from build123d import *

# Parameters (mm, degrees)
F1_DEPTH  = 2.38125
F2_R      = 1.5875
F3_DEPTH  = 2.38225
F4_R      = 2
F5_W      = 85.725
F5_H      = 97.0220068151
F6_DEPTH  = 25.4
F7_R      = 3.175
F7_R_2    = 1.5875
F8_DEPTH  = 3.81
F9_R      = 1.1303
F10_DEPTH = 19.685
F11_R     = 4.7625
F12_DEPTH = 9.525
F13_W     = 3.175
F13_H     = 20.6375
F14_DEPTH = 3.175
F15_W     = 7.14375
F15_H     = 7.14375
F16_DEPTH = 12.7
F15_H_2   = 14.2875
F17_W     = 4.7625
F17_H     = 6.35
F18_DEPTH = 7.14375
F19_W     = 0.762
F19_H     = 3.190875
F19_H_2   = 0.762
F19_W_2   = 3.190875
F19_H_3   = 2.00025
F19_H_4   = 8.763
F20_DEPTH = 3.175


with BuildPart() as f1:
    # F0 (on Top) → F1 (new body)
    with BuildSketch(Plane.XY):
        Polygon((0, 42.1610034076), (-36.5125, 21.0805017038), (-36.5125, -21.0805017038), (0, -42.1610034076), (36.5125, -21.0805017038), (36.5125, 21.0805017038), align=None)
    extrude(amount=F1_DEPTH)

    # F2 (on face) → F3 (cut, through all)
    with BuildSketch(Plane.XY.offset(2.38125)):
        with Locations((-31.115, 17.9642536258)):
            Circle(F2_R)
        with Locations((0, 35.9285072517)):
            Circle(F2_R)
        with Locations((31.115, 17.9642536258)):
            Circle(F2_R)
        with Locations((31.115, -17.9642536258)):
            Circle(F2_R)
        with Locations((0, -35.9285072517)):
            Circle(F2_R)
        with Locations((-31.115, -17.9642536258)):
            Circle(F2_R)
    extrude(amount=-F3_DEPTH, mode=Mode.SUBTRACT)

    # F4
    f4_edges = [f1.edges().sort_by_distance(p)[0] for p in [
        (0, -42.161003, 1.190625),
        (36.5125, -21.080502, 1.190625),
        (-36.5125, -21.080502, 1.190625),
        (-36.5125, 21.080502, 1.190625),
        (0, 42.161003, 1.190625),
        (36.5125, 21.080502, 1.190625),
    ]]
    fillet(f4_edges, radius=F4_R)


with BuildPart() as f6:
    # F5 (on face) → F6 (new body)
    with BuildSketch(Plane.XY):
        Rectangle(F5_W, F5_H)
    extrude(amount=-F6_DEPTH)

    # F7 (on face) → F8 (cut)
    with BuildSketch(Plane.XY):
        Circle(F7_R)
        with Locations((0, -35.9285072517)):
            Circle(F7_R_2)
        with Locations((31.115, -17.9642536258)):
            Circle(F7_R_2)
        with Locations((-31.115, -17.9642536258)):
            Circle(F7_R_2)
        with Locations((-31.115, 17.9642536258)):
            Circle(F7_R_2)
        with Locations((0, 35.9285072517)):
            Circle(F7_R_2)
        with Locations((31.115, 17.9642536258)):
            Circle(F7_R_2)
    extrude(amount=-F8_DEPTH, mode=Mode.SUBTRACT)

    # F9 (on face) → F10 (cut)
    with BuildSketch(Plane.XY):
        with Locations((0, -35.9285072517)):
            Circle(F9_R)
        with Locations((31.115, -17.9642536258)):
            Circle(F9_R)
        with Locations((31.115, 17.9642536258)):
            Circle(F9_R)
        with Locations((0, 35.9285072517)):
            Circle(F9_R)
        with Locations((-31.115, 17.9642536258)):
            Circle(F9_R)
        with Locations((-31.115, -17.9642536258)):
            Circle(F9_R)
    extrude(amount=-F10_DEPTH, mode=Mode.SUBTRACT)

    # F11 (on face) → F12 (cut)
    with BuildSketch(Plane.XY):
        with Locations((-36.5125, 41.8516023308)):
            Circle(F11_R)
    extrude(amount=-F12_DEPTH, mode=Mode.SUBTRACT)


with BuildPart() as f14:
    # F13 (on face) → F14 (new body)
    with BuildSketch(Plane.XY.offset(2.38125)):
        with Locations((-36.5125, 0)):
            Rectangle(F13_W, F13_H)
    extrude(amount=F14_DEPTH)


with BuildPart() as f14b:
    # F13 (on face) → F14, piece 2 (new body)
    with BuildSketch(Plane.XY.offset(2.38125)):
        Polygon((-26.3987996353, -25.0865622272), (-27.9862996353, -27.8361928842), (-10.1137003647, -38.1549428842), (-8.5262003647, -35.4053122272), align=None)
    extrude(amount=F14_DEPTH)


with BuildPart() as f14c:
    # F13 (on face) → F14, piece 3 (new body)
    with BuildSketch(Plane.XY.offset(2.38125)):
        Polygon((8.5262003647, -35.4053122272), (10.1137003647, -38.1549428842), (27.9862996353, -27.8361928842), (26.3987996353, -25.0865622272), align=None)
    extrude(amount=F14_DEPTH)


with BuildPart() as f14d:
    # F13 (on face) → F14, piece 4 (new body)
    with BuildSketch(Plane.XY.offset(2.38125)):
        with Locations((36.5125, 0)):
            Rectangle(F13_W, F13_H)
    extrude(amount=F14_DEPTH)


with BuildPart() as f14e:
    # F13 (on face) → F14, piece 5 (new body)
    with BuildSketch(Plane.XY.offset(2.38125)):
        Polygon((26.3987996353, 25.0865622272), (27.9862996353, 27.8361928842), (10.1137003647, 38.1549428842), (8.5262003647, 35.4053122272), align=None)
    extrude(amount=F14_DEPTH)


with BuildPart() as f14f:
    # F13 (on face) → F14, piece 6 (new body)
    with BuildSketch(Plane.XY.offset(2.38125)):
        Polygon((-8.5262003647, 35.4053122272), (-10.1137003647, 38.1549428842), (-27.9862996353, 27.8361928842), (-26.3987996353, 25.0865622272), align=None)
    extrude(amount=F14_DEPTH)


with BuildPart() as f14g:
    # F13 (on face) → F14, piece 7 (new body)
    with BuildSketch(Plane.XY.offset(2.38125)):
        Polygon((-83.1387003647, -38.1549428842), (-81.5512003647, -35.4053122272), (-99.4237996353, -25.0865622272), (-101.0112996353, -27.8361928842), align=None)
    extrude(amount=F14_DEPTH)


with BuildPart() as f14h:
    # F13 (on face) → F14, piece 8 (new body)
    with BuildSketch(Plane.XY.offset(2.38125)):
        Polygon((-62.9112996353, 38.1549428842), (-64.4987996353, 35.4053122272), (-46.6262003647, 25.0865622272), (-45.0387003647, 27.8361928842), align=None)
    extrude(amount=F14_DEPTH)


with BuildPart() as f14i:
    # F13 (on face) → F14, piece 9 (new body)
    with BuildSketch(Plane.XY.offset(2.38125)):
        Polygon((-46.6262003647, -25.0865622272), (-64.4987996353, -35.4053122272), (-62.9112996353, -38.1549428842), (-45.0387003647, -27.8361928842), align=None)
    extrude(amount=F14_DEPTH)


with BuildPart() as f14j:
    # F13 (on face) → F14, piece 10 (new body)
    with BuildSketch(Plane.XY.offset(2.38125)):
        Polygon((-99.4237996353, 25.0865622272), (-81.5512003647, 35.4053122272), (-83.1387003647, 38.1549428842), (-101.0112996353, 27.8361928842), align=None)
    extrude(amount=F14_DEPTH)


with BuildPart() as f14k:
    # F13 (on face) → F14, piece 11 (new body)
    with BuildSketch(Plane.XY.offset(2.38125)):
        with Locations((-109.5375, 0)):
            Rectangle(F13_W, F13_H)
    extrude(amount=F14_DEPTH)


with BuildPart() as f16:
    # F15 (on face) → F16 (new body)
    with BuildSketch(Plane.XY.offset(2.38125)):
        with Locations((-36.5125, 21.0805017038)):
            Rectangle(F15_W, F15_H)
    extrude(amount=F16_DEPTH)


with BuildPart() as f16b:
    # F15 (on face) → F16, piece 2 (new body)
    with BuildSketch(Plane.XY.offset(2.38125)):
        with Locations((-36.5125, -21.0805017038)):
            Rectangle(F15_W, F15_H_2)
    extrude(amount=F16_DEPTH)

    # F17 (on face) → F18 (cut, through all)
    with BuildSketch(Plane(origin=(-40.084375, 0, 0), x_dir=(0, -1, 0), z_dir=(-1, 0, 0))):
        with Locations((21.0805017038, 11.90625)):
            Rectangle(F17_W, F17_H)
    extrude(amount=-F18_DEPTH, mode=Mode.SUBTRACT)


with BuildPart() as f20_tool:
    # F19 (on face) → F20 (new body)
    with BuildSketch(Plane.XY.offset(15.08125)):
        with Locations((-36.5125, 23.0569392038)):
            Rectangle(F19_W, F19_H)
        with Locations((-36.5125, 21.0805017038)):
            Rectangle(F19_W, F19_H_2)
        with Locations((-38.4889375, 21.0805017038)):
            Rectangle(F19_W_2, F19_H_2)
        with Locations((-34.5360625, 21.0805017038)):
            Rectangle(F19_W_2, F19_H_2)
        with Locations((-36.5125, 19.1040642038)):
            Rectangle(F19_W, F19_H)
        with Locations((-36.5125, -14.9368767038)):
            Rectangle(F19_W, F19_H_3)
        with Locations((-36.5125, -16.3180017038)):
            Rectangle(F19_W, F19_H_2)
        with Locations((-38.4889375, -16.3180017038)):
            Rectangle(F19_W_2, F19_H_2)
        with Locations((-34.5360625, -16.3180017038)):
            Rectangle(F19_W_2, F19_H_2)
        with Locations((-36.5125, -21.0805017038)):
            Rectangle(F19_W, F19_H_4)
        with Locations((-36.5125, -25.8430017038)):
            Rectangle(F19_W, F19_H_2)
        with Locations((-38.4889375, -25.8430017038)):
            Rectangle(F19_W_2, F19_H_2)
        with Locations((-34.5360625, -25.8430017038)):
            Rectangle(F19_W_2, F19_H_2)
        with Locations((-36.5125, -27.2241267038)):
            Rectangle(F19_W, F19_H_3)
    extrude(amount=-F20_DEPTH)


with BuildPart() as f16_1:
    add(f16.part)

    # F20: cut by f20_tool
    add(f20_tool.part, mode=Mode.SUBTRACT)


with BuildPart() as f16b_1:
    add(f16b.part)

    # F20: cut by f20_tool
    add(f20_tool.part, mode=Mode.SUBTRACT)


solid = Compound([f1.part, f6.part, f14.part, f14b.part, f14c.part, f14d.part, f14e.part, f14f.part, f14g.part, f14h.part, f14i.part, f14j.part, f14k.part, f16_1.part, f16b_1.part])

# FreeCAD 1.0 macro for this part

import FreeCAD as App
import Part
import Sketcher
Q = App.Units.Quantity


def edges_at(feature, points):
    """Names of the edges that pass closest to the given points."""
    edges = feature.Shape.Edges
    near = lambda p: min(range(len(edges)), key=lambda i: edges[i].distToShape(Part.Vertex(*p))[0])
    return sorted({f"Edge{near(p) + 1}" for p in points})

doc = App.newDocument("Part")
body = doc.addObject("PartDesign::Body", "Body")

# Sketch on XY plane
sketch1 = body.newObject("Sketcher::SketchObject", "Sketch")
sketch1.AttachmentSupport = (doc.getObject("XY_Plane"), [""])
sketch1.MapMode = "FlatFace"
sketch1.addGeometry([
    Part.LineSegment(App.Vector(0, 42, 0), App.Vector(-37, 21, 0)),  # 0
    Part.LineSegment(App.Vector(-37, 21, 0), App.Vector(-37, -21, 0)),  # 1
    Part.LineSegment(App.Vector(-37, -21, 0), App.Vector(0, -42, 0)),  # 2
    Part.LineSegment(App.Vector(0, -42, 0), App.Vector(37, -21, 0)),  # 3
    Part.LineSegment(App.Vector(37, -21, 0), App.Vector(37, 21, 0)),  # 4
    Part.LineSegment(App.Vector(37, 21, 0), App.Vector(0, 42, 0)),  # 5
], False)
sketch1.addConstraint([
    Sketcher.Constraint("Coincident", 0, 2, 1, 1),
    Sketcher.Constraint("Coincident", 1, 2, 2, 1),
    Sketcher.Constraint("Coincident", 2, 2, 3, 1),
    Sketcher.Constraint("Coincident", 3, 2, 4, 1),
    Sketcher.Constraint("Coincident", 4, 2, 5, 1),
    Sketcher.Constraint("Coincident", 5, 2, 0, 1),
    Sketcher.Constraint("Vertical", 1),
    Sketcher.Constraint("Vertical", 4),
    Sketcher.Constraint("Symmetric", 0, 2, 3, 2, -1, 1),
    Sketcher.Constraint("Symmetric", 2, 2, 5, 2, -1, 1),
    Sketcher.Constraint("PointOnObject", 2, 2, -2),
    Sketcher.Constraint("Parallel", 2, 5),
    Sketcher.Constraint("Horizontal", 1, 2, 3, 2),
    Sketcher.Constraint("Angle", 0, Q("-150 deg")),
    Sketcher.Constraint("DistanceX", 0, 2, -1, 1, Q("1.4375 in")),
    Sketcher.Constraint("DistanceY", -1, 1, 0, 2, 21.080502),
])
pad1 = body.newObject("PartDesign::Pad", "Pad")
pad1.Profile = sketch1
pad1.Length = Q("0.09375 in")

# Sketch on XY plane
sketch2 = body.newObject("Sketcher::SketchObject", "Sketch001")
sketch2.AttachmentSupport = (doc.getObject("XY_Plane"), [""])
sketch2.MapMode = "FlatFace"
sketch2.AttachmentOffset = App.Placement(App.Vector(0, 0, 0.09375 * 25.4), App.Rotation())
sketch2.addGeometry([
    Part.Circle(App.Vector(-31.1, 18, 0), App.Vector(0, 0, 1), 1.6),  # 0
    Part.Circle(App.Vector(0, 35.9, 0), App.Vector(0, 0, 1), 1.6),  # 1
    Part.Circle(App.Vector(31.1, 18, 0), App.Vector(0, 0, 1), 1.6),  # 2
    Part.Circle(App.Vector(31.1, -18, 0), App.Vector(0, 0, 1), 1.6),  # 3
    Part.Circle(App.Vector(0, -35.9, 0), App.Vector(0, 0, 1), 1.6),  # 4
    Part.Circle(App.Vector(-31.1, -18, 0), App.Vector(0, 0, 1), 1.6),  # 5
], False)
sketch2.addConstraint([
    Sketcher.Constraint("Equal", 0, 1),
    Sketcher.Constraint("Equal", 1, 2),
    Sketcher.Constraint("Equal", 2, 3),
    Sketcher.Constraint("Equal", 3, 4),
    Sketcher.Constraint("Equal", 4, 5),
    Sketcher.Constraint("Symmetric", 0, 3, 3, 3, -1, 1),
    Sketcher.Constraint("Symmetric", 1, 3, 4, 3, -1, 1),
    Sketcher.Constraint("Symmetric", 2, 3, 5, 3, -1, 1),
    Sketcher.Constraint("Symmetric", 0, 3, 2, 3, -2),
    Sketcher.Constraint("PointOnObject", 1, 3, -2),
    Sketcher.Constraint("Diameter", 0, Q("0.125 in")),
    Sketcher.Constraint("DistanceX", 0, 3, 2, 3, Q("2.45 in")),
    Sketcher.Constraint("DistanceY", 3, 3, 1, 3, 53.892761),
    Sketcher.Constraint("DistanceY", -1, 1, 0, 3, 17.964254),
])
pocket1 = body.newObject("PartDesign::Pocket", "Pocket")
pocket1.Profile = sketch2
pocket1.Type = "ThroughAll"
doc.recompute()

fillet = body.newObject("PartDesign::Fillet", "Fillet")
fillet.Base = (pocket1, edges_at(pocket1, [
    (0, -42.161, 1.191),
    (36.513, -21.081, 1.191),
    (-36.513, -21.081, 1.191),
    (-36.513, 21.081, 1.191),
    (0, 42.161, 1.191),
    (36.513, 21.081, 1.191),
]))
fillet.Radius = 2
body2 = doc.addObject("PartDesign::Body", "Body001")

# Sketch on XY plane
sketch3 = body2.newObject("Sketcher::SketchObject", "Sketch002")
sketch3.AttachmentSupport = (doc.getObject("XY_Plane001"), [""])
sketch3.MapMode = "FlatFace"
sketch3.addGeometry([
    Part.LineSegment(App.Vector(-43, 49, 0), App.Vector(-43, -49, 0)),
    Part.LineSegment(App.Vector(-43, -49, 0), App.Vector(43, -49, 0)),
    Part.LineSegment(App.Vector(43, -49, 0), App.Vector(43, 49, 0)),
    Part.LineSegment(App.Vector(43, 49, 0), App.Vector(-43, 49, 0)),
], False)
sketch3.addConstraint([
    Sketcher.Constraint("Coincident", 0, 2, 1, 1),
    Sketcher.Constraint("Coincident", 1, 2, 2, 1),
    Sketcher.Constraint("Coincident", 2, 2, 3, 1),
    Sketcher.Constraint("Coincident", 3, 2, 0, 1),
    Sketcher.Constraint("Vertical", 0),
    Sketcher.Constraint("Horizontal", 1),
    Sketcher.Constraint("Vertical", 2),
    Sketcher.Constraint("Horizontal", 3),
    Sketcher.Constraint("Symmetric", 0, 2, 2, 2, -1, 1),
    Sketcher.Constraint("DistanceX", 1, 1, 1, 2, Q("3.375 in")),
    Sketcher.Constraint("DistanceY", 0, 2, 0, 1, 97.022007),
])
pad2 = body2.newObject("PartDesign::Pad", "Pad001")
pad2.Profile = sketch3
pad2.Length = Q("1 in")
pad2.Reversed = True

# Sketch on XY plane
sketch4 = body2.newObject("Sketcher::SketchObject", "Sketch003")
sketch4.AttachmentSupport = (doc.getObject("XY_Plane001"), [""])
sketch4.MapMode = "FlatFace"
sketch4.addGeometry([
    Part.Circle(App.Vector(0, 0, 0), App.Vector(0, 0, 1), 3.2),  # 0
    Part.Circle(App.Vector(0, -35.9, 0), App.Vector(0, 0, 1), 1.6),  # 1
    Part.Circle(App.Vector(31.1, -18, 0), App.Vector(0, 0, 1), 1.6),  # 2
    Part.Circle(App.Vector(-31.1, -18, 0), App.Vector(0, 0, 1), 1.6),  # 3
    Part.Circle(App.Vector(-31.1, 18, 0), App.Vector(0, 0, 1), 1.6),  # 4
    Part.Circle(App.Vector(0, 35.9, 0), App.Vector(0, 0, 1), 1.6),  # 5
    Part.Circle(App.Vector(31.1, 18, 0), App.Vector(0, 0, 1), 1.6),  # 6
], False)
sketch4.addConstraint([
    Sketcher.Constraint("Coincident", 0, 3, -1, 1),
    Sketcher.Constraint("Equal", 1, 2),
    Sketcher.Constraint("Equal", 2, 3),
    Sketcher.Constraint("Equal", 3, 4),
    Sketcher.Constraint("Equal", 4, 5),
    Sketcher.Constraint("Equal", 5, 6),
    Sketcher.Constraint("Symmetric", 2, 3, 4, 3, -1, 1),
    Sketcher.Constraint("Symmetric", 1, 3, 5, 3, -1, 1),
    Sketcher.Constraint("Symmetric", 3, 3, 6, 3, -1, 1),
    Sketcher.Constraint("Symmetric", 2, 3, 3, 3, -2),
    Sketcher.Constraint("PointOnObject", 1, 3, -2),
    Sketcher.Constraint("Diameter", 0, Q("0.25 in")),
    Sketcher.Constraint("Diameter", 1, Q("0.125 in")),
    Sketcher.Constraint("DistanceX", 3, 3, 2, 3, Q("2.45 in")),
    Sketcher.Constraint("DistanceY", 1, 3, 4, 3, 53.892761),
    Sketcher.Constraint("DistanceY", 1, 3, -1, 1, 35.928507),
])
pocket2 = body2.newObject("PartDesign::Pocket", "Pocket001")
pocket2.Profile = sketch4
pocket2.Length = Q("0.15 in")

# Sketch on XY plane
sketch5 = body2.newObject("Sketcher::SketchObject", "Sketch004")
sketch5.AttachmentSupport = (doc.getObject("XY_Plane001"), [""])
sketch5.MapMode = "FlatFace"
sketch5.addGeometry([
    Part.Circle(App.Vector(0, -35.9, 0), App.Vector(0, 0, 1), 1.1),  # 0
    Part.Circle(App.Vector(31.1, -18, 0), App.Vector(0, 0, 1), 1.1),  # 1
    Part.Circle(App.Vector(31.1, 18, 0), App.Vector(0, 0, 1), 1.1),  # 2
    Part.Circle(App.Vector(0, 35.9, 0), App.Vector(0, 0, 1), 1.1),  # 3
    Part.Circle(App.Vector(-31.1, 18, 0), App.Vector(0, 0, 1), 1.1),  # 4
    Part.Circle(App.Vector(-31.1, -18, 0), App.Vector(0, 0, 1), 1.1),  # 5
], False)
sketch5.addConstraint([
    Sketcher.Constraint("Equal", 0, 1),
    Sketcher.Constraint("Equal", 1, 2),
    Sketcher.Constraint("Equal", 2, 3),
    Sketcher.Constraint("Equal", 3, 4),
    Sketcher.Constraint("Equal", 4, 5),
    Sketcher.Constraint("Symmetric", 0, 3, 3, 3, -1, 1),
    Sketcher.Constraint("Symmetric", 1, 3, 4, 3, -1, 1),
    Sketcher.Constraint("Symmetric", 2, 3, 5, 3, -1, 1),
    Sketcher.Constraint("Symmetric", 2, 3, 4, 3, -2),
    Sketcher.Constraint("PointOnObject", 0, 3, -2),
    Sketcher.Constraint("Diameter", 0, Q("0.089 in")),
    Sketcher.Constraint("DistanceX", 4, 3, 2, 3, Q("2.45 in")),
    Sketcher.Constraint("DistanceY", 0, 3, 2, 3, 53.892761),
    Sketcher.Constraint("DistanceY", 0, 3, -1, 1, 35.928507),
])
pocket3 = body2.newObject("PartDesign::Pocket", "Pocket002")
pocket3.Profile = sketch5
pocket3.Length = Q("0.775 in")

# Sketch on XY plane
sketch6 = body2.newObject("Sketcher::SketchObject", "Sketch005")
sketch6.AttachmentSupport = (doc.getObject("XY_Plane001"), [""])
sketch6.MapMode = "FlatFace"
sketch6.addGeometry(Part.Circle(App.Vector(-36.5, 41.9, 0), App.Vector(0, 0, 1), 4.8), False)
sketch6.addConstraint([
    Sketcher.Constraint("Diameter", 0, Q("0.375 in")),
    Sketcher.Constraint("DistanceX", 0, 3, -1, 1, Q("1.4375 in")),
    Sketcher.Constraint("DistanceY", -1, 1, 0, 3, 41.851602),
])
pocket4 = body2.newObject("PartDesign::Pocket", "Pocket003")
pocket4.Profile = sketch6
pocket4.Length = Q("0.375 in")
body3 = doc.addObject("PartDesign::Body", "Body002")

# Sketch on XY plane
sketch7 = body3.newObject("Sketcher::SketchObject", "Sketch006")
sketch7.AttachmentSupport = (doc.getObject("XY_Plane002"), [""])
sketch7.MapMode = "FlatFace"
sketch7.AttachmentOffset = App.Placement(App.Vector(0, 0, 0.09375 * 25.4), App.Rotation())
sketch7.addGeometry([
    Part.LineSegment(App.Vector(-38.1, 10.3, 0), App.Vector(-38.1, -10.3, 0)),
    Part.LineSegment(App.Vector(-38.1, -10.3, 0), App.Vector(-34.9, -10.3, 0)),
    Part.LineSegment(App.Vector(-34.9, -10.3, 0), App.Vector(-34.9, 10.3, 0)),
    Part.LineSegment(App.Vector(-34.9, 10.3, 0), App.Vector(-38.1, 10.3, 0)),
], False)
sketch7.addConstraint([
    Sketcher.Constraint("Coincident", 0, 2, 1, 1),
    Sketcher.Constraint("Coincident", 1, 2, 2, 1),
    Sketcher.Constraint("Coincident", 2, 2, 3, 1),
    Sketcher.Constraint("Coincident", 3, 2, 0, 1),
    Sketcher.Constraint("Vertical", 0),
    Sketcher.Constraint("Horizontal", 1),
    Sketcher.Constraint("Vertical", 2),
    Sketcher.Constraint("Horizontal", 3),
    Sketcher.Constraint("DistanceX", 0, 2, -1, 1, Q("1.5 in")),
    Sketcher.Constraint("DistanceX", 1, 1, 1, 2, Q("0.125 in")),
    Sketcher.Constraint("DistanceY", 0, 2, 0, 1, Q("0.8125 in")),
    Sketcher.Constraint("DistanceY", 0, 2, -1, 1, Q("0.40625 in")),
])
pad3 = body3.newObject("PartDesign::Pad", "Pad002")
pad3.Profile = sketch7
pad3.Length = Q("0.125 in")
body4 = doc.addObject("PartDesign::Body", "Body003")

# Sketch on XY plane
sketch8 = body4.newObject("Sketcher::SketchObject", "Sketch007")
sketch8.AttachmentSupport = (doc.getObject("XY_Plane003"), [""])
sketch8.MapMode = "FlatFace"
sketch8.AttachmentOffset = App.Placement(App.Vector(0, 0, 0.09375 * 25.4), App.Rotation())
sketch8.addGeometry([
    Part.LineSegment(App.Vector(-26.4, -25.1, 0), App.Vector(-28, -27.8, 0)),
    Part.LineSegment(App.Vector(-28, -27.8, 0), App.Vector(-10.1, -38.2, 0)),
    Part.LineSegment(App.Vector(-10.1, -38.2, 0), App.Vector(-8.5, -35.4, 0)),
    Part.LineSegment(App.Vector(-8.5, -35.4, 0), App.Vector(-26.4, -25.1, 0)),
], False)
sketch8.addConstraint([
    Sketcher.Constraint("Coincident", 0, 2, 1, 1),
    Sketcher.Constraint("Coincident", 1, 2, 2, 1),
    Sketcher.Constraint("Coincident", 2, 2, 3, 1),
    Sketcher.Constraint("Coincident", 3, 2, 0, 1),
    Sketcher.Constraint("Perpendicular", 0, 1),
    Sketcher.Constraint("Perpendicular", 1, 2),
    Sketcher.Constraint("Perpendicular", 2, 3),
    Sketcher.Constraint("Angle", 0, Q("-120 deg")),
    Sketcher.Constraint("Distance", 0, Q("0.125 in")),
    Sketcher.Constraint("Distance", 1, Q("0.8125 in")),
    Sketcher.Constraint("DistanceX", 0, 2, -1, 1, 27.9863),
    Sketcher.Constraint("DistanceY", 0, 2, -1, 1, 27.836193),
])
pad4 = body4.newObject("PartDesign::Pad", "Pad003")
pad4.Profile = sketch8
pad4.Length = Q("0.125 in")
body5 = doc.addObject("PartDesign::Body", "Body004")

# Sketch on XY plane
sketch9 = body5.newObject("Sketcher::SketchObject", "Sketch008")
sketch9.AttachmentSupport = (doc.getObject("XY_Plane004"), [""])
sketch9.MapMode = "FlatFace"
sketch9.AttachmentOffset = App.Placement(App.Vector(0, 0, 0.09375 * 25.4), App.Rotation())
sketch9.addGeometry([
    Part.LineSegment(App.Vector(8.5, -35.4, 0), App.Vector(10.1, -38.2, 0)),
    Part.LineSegment(App.Vector(10.1, -38.2, 0), App.Vector(28, -27.8, 0)),
    Part.LineSegment(App.Vector(28, -27.8, 0), App.Vector(26.4, -25.1, 0)),
    Part.LineSegment(App.Vector(26.4, -25.1, 0), App.Vector(8.5, -35.4, 0)),
], False)
sketch9.addConstraint([
    Sketcher.Constraint("Coincident", 0, 2, 1, 1),
    Sketcher.Constraint("Coincident", 1, 2, 2, 1),
    Sketcher.Constraint("Coincident", 2, 2, 3, 1),
    Sketcher.Constraint("Coincident", 3, 2, 0, 1),
    Sketcher.Constraint("Perpendicular", 0, 1),
    Sketcher.Constraint("Perpendicular", 1, 2),
    Sketcher.Constraint("Perpendicular", 2, 3),
    Sketcher.Constraint("Angle", 0, Q("-60 deg")),
    Sketcher.Constraint("Distance", 0, Q("0.125 in")),
    Sketcher.Constraint("Distance", 1, Q("0.8125 in")),
    Sketcher.Constraint("DistanceX", -1, 1, 0, 2, 10.1137),
    Sketcher.Constraint("DistanceY", 0, 2, -1, 1, 38.154943),
])
pad5 = body5.newObject("PartDesign::Pad", "Pad004")
pad5.Profile = sketch9
pad5.Length = Q("0.125 in")
body6 = doc.addObject("PartDesign::Body", "Body005")

# Sketch on XY plane
sketch10 = body6.newObject("Sketcher::SketchObject", "Sketch009")
sketch10.AttachmentSupport = (doc.getObject("XY_Plane005"), [""])
sketch10.MapMode = "FlatFace"
sketch10.AttachmentOffset = App.Placement(App.Vector(0, 0, 0.09375 * 25.4), App.Rotation())
sketch10.addGeometry([
    Part.LineSegment(App.Vector(34.9, 10.3, 0), App.Vector(34.9, -10.3, 0)),
    Part.LineSegment(App.Vector(34.9, -10.3, 0), App.Vector(38.1, -10.3, 0)),
    Part.LineSegment(App.Vector(38.1, -10.3, 0), App.Vector(38.1, 10.3, 0)),
    Part.LineSegment(App.Vector(38.1, 10.3, 0), App.Vector(34.9, 10.3, 0)),
], False)
sketch10.addConstraint([
    Sketcher.Constraint("Coincident", 0, 2, 1, 1),
    Sketcher.Constraint("Coincident", 1, 2, 2, 1),
    Sketcher.Constraint("Coincident", 2, 2, 3, 1),
    Sketcher.Constraint("Coincident", 3, 2, 0, 1),
    Sketcher.Constraint("Vertical", 0),
    Sketcher.Constraint("Horizontal", 1),
    Sketcher.Constraint("Vertical", 2),
    Sketcher.Constraint("Horizontal", 3),
    Sketcher.Constraint("DistanceX", -1, 1, 1, 2, Q("1.5 in")),
    Sketcher.Constraint("DistanceX", 1, 1, 1, 2, Q("0.125 in")),
    Sketcher.Constraint("DistanceY", 0, 2, 0, 1, Q("0.8125 in")),
    Sketcher.Constraint("DistanceY", 0, 2, -1, 1, Q("0.40625 in")),
])
pad6 = body6.newObject("PartDesign::Pad", "Pad005")
pad6.Profile = sketch10
pad6.Length = Q("0.125 in")
body7 = doc.addObject("PartDesign::Body", "Body006")

# Sketch on XY plane
sketch11 = body7.newObject("Sketcher::SketchObject", "Sketch010")
sketch11.AttachmentSupport = (doc.getObject("XY_Plane006"), [""])
sketch11.MapMode = "FlatFace"
sketch11.AttachmentOffset = App.Placement(App.Vector(0, 0, 0.09375 * 25.4), App.Rotation())
sketch11.addGeometry([
    Part.LineSegment(App.Vector(26.4, 25.1, 0), App.Vector(28, 27.8, 0)),
    Part.LineSegment(App.Vector(28, 27.8, 0), App.Vector(10.1, 38.2, 0)),
    Part.LineSegment(App.Vector(10.1, 38.2, 0), App.Vector(8.5, 35.4, 0)),
    Part.LineSegment(App.Vector(8.5, 35.4, 0), App.Vector(26.4, 25.1, 0)),
], False)
sketch11.addConstraint([
    Sketcher.Constraint("Coincident", 0, 2, 1, 1),
    Sketcher.Constraint("Coincident", 1, 2, 2, 1),
    Sketcher.Constraint("Coincident", 2, 2, 3, 1),
    Sketcher.Constraint("Coincident", 3, 2, 0, 1),
    Sketcher.Constraint("Perpendicular", 0, 1),
    Sketcher.Constraint("Perpendicular", 1, 2),
    Sketcher.Constraint("Perpendicular", 2, 3),
    Sketcher.Constraint("Angle", 0, Q("60 deg")),
    Sketcher.Constraint("Distance", 0, Q("0.125 in")),
    Sketcher.Constraint("Distance", 1, Q("0.8125 in")),
    Sketcher.Constraint("DistanceX", -1, 1, 0, 2, 27.9863),
    Sketcher.Constraint("DistanceY", -1, 1, 0, 2, 27.836193),
])
pad7 = body7.newObject("PartDesign::Pad", "Pad006")
pad7.Profile = sketch11
pad7.Length = Q("0.125 in")
body8 = doc.addObject("PartDesign::Body", "Body007")

# Sketch on XY plane
sketch12 = body8.newObject("Sketcher::SketchObject", "Sketch011")
sketch12.AttachmentSupport = (doc.getObject("XY_Plane007"), [""])
sketch12.MapMode = "FlatFace"
sketch12.AttachmentOffset = App.Placement(App.Vector(0, 0, 0.09375 * 25.4), App.Rotation())
sketch12.addGeometry([
    Part.LineSegment(App.Vector(-8.5, 35.4, 0), App.Vector(-10.1, 38.2, 0)),
    Part.LineSegment(App.Vector(-10.1, 38.2, 0), App.Vector(-28, 27.8, 0)),
    Part.LineSegment(App.Vector(-28, 27.8, 0), App.Vector(-26.4, 25.1, 0)),
    Part.LineSegment(App.Vector(-26.4, 25.1, 0), App.Vector(-8.5, 35.4, 0)),
], False)
sketch12.addConstraint([
    Sketcher.Constraint("Coincident", 0, 2, 1, 1),
    Sketcher.Constraint("Coincident", 1, 2, 2, 1),
    Sketcher.Constraint("Coincident", 2, 2, 3, 1),
    Sketcher.Constraint("Coincident", 3, 2, 0, 1),
    Sketcher.Constraint("Perpendicular", 0, 1),
    Sketcher.Constraint("Perpendicular", 1, 2),
    Sketcher.Constraint("Perpendicular", 2, 3),
    Sketcher.Constraint("Angle", 0, Q("120 deg")),
    Sketcher.Constraint("Distance", 0, Q("0.125 in")),
    Sketcher.Constraint("Distance", 1, Q("0.8125 in")),
    Sketcher.Constraint("DistanceX", 0, 2, -1, 1, 10.1137),
    Sketcher.Constraint("DistanceY", -1, 1, 0, 2, 38.154943),
])
pad8 = body8.newObject("PartDesign::Pad", "Pad007")
pad8.Profile = sketch12
pad8.Length = Q("0.125 in")
body9 = doc.addObject("PartDesign::Body", "Body008")

# Sketch on XY plane
sketch13 = body9.newObject("Sketcher::SketchObject", "Sketch012")
sketch13.AttachmentSupport = (doc.getObject("XY_Plane008"), [""])
sketch13.MapMode = "FlatFace"
sketch13.AttachmentOffset = App.Placement(App.Vector(0, 0, 0.09375 * 25.4), App.Rotation())
sketch13.addGeometry([
    Part.LineSegment(App.Vector(-83.1, -38.2, 0), App.Vector(-81.6, -35.4, 0)),
    Part.LineSegment(App.Vector(-81.6, -35.4, 0), App.Vector(-99.4, -25.1, 0)),
    Part.LineSegment(App.Vector(-99.4, -25.1, 0), App.Vector(-101, -27.8, 0)),
    Part.LineSegment(App.Vector(-101, -27.8, 0), App.Vector(-83.1, -38.2, 0)),
], False)
sketch13.addConstraint([
    Sketcher.Constraint("Coincident", 0, 2, 1, 1),
    Sketcher.Constraint("Coincident", 1, 2, 2, 1),
    Sketcher.Constraint("Coincident", 2, 2, 3, 1),
    Sketcher.Constraint("Coincident", 3, 2, 0, 1),
    Sketcher.Constraint("Perpendicular", 0, 1),
    Sketcher.Constraint("Perpendicular", 1, 2),
    Sketcher.Constraint("Perpendicular", 2, 3),
    Sketcher.Constraint("Angle", 0, Q("60 deg")),
    Sketcher.Constraint("Distance", 0, Q("0.125 in")),
    Sketcher.Constraint("Distance", 1, Q("0.8125 in")),
    Sketcher.Constraint("DistanceX", 0, 2, -1, 1, 81.5512),
    Sketcher.Constraint("DistanceY", 0, 2, -1, 1, 35.405312),
])
pad9 = body9.newObject("PartDesign::Pad", "Pad008")
pad9.Profile = sketch13
pad9.Length = Q("0.125 in")
body10 = doc.addObject("PartDesign::Body", "Body009")

# Sketch on XY plane
sketch14 = body10.newObject("Sketcher::SketchObject", "Sketch013")
sketch14.AttachmentSupport = (doc.getObject("XY_Plane009"), [""])
sketch14.MapMode = "FlatFace"
sketch14.AttachmentOffset = App.Placement(App.Vector(0, 0, 0.09375 * 25.4), App.Rotation())
sketch14.addGeometry([
    Part.LineSegment(App.Vector(-62.9, 38.2, 0), App.Vector(-64.5, 35.4, 0)),
    Part.LineSegment(App.Vector(-64.5, 35.4, 0), App.Vector(-46.6, 25.1, 0)),
    Part.LineSegment(App.Vector(-46.6, 25.1, 0), App.Vector(-45, 27.8, 0)),
    Part.LineSegment(App.Vector(-45, 27.8, 0), App.Vector(-62.9, 38.2, 0)),
], False)
sketch14.addConstraint([
    Sketcher.Constraint("Coincident", 0, 2, 1, 1),
    Sketcher.Constraint("Coincident", 1, 2, 2, 1),
    Sketcher.Constraint("Coincident", 2, 2, 3, 1),
    Sketcher.Constraint("Coincident", 3, 2, 0, 1),
    Sketcher.Constraint("Perpendicular", 0, 1),
    Sketcher.Constraint("Perpendicular", 1, 2),
    Sketcher.Constraint("Perpendicular", 2, 3),
    Sketcher.Constraint("Angle", 0, Q("-120 deg")),
    Sketcher.Constraint("Distance", 0, Q("0.125 in")),
    Sketcher.Constraint("Distance", 1, Q("0.8125 in")),
    Sketcher.Constraint("DistanceX", 0, 2, -1, 1, 64.4988),
    Sketcher.Constraint("DistanceY", -1, 1, 0, 2, 35.405312),
])
pad10 = body10.newObject("PartDesign::Pad", "Pad009")
pad10.Profile = sketch14
pad10.Length = Q("0.125 in")
body11 = doc.addObject("PartDesign::Body", "Body010")

# Sketch on XY plane
sketch15 = body11.newObject("Sketcher::SketchObject", "Sketch014")
sketch15.AttachmentSupport = (doc.getObject("XY_Plane010"), [""])
sketch15.MapMode = "FlatFace"
sketch15.AttachmentOffset = App.Placement(App.Vector(0, 0, 0.09375 * 25.4), App.Rotation())
sketch15.addGeometry([
    Part.LineSegment(App.Vector(-46.6, -25.1, 0), App.Vector(-64.5, -35.4, 0)),
    Part.LineSegment(App.Vector(-64.5, -35.4, 0), App.Vector(-62.9, -38.2, 0)),
    Part.LineSegment(App.Vector(-62.9, -38.2, 0), App.Vector(-45, -27.8, 0)),
    Part.LineSegment(App.Vector(-45, -27.8, 0), App.Vector(-46.6, -25.1, 0)),
], False)
sketch15.addConstraint([
    Sketcher.Constraint("Coincident", 0, 2, 1, 1),
    Sketcher.Constraint("Coincident", 1, 2, 2, 1),
    Sketcher.Constraint("Coincident", 2, 2, 3, 1),
    Sketcher.Constraint("Coincident", 3, 2, 0, 1),
    Sketcher.Constraint("Perpendicular", 0, 1),
    Sketcher.Constraint("Perpendicular", 1, 2),
    Sketcher.Constraint("Perpendicular", 2, 3),
    Sketcher.Constraint("Angle", 0, Q("-150 deg")),
    Sketcher.Constraint("Distance", 0, Q("0.8125 in")),
    Sketcher.Constraint("Distance", 1, Q("0.125 in")),
    Sketcher.Constraint("DistanceX", 0, 2, -1, 1, 64.4988),
    Sketcher.Constraint("DistanceY", 0, 2, -1, 1, 35.405312),
])
pad11 = body11.newObject("PartDesign::Pad", "Pad010")
pad11.Profile = sketch15
pad11.Length = Q("0.125 in")
body12 = doc.addObject("PartDesign::Body", "Body011")

# Sketch on XY plane
sketch16 = body12.newObject("Sketcher::SketchObject", "Sketch015")
sketch16.AttachmentSupport = (doc.getObject("XY_Plane011"), [""])
sketch16.MapMode = "FlatFace"
sketch16.AttachmentOffset = App.Placement(App.Vector(0, 0, 0.09375 * 25.4), App.Rotation())
sketch16.addGeometry([
    Part.LineSegment(App.Vector(-99.4, 25.1, 0), App.Vector(-81.6, 35.4, 0)),
    Part.LineSegment(App.Vector(-81.6, 35.4, 0), App.Vector(-83.1, 38.2, 0)),
    Part.LineSegment(App.Vector(-83.1, 38.2, 0), App.Vector(-101, 27.8, 0)),
    Part.LineSegment(App.Vector(-101, 27.8, 0), App.Vector(-99.4, 25.1, 0)),
], False)
sketch16.addConstraint([
    Sketcher.Constraint("Coincident", 0, 2, 1, 1),
    Sketcher.Constraint("Coincident", 1, 2, 2, 1),
    Sketcher.Constraint("Coincident", 2, 2, 3, 1),
    Sketcher.Constraint("Coincident", 3, 2, 0, 1),
    Sketcher.Constraint("Perpendicular", 0, 1),
    Sketcher.Constraint("Perpendicular", 1, 2),
    Sketcher.Constraint("Perpendicular", 2, 3),
    Sketcher.Constraint("Angle", 0, Q("30 deg")),
    Sketcher.Constraint("Distance", 0, Q("0.8125 in")),
    Sketcher.Constraint("Distance", 1, Q("0.125 in")),
    Sketcher.Constraint("DistanceX", 0, 2, -1, 1, 81.5512),
    Sketcher.Constraint("DistanceY", -1, 1, 0, 2, 35.405312),
])
pad12 = body12.newObject("PartDesign::Pad", "Pad011")
pad12.Profile = sketch16
pad12.Length = Q("0.125 in")
body13 = doc.addObject("PartDesign::Body", "Body012")

# Sketch on XY plane
sketch17 = body13.newObject("Sketcher::SketchObject", "Sketch016")
sketch17.AttachmentSupport = (doc.getObject("XY_Plane012"), [""])
sketch17.MapMode = "FlatFace"
sketch17.AttachmentOffset = App.Placement(App.Vector(0, 0, 0.09375 * 25.4), App.Rotation())
sketch17.addGeometry([
    Part.LineSegment(App.Vector(-111.1, 10.3, 0), App.Vector(-111.1, -10.3, 0)),
    Part.LineSegment(App.Vector(-111.1, -10.3, 0), App.Vector(-108, -10.3, 0)),
    Part.LineSegment(App.Vector(-108, -10.3, 0), App.Vector(-108, 10.3, 0)),
    Part.LineSegment(App.Vector(-108, 10.3, 0), App.Vector(-111.1, 10.3, 0)),
], False)
sketch17.addConstraint([
    Sketcher.Constraint("Coincident", 0, 2, 1, 1),
    Sketcher.Constraint("Coincident", 1, 2, 2, 1),
    Sketcher.Constraint("Coincident", 2, 2, 3, 1),
    Sketcher.Constraint("Coincident", 3, 2, 0, 1),
    Sketcher.Constraint("Vertical", 0),
    Sketcher.Constraint("Horizontal", 1),
    Sketcher.Constraint("Vertical", 2),
    Sketcher.Constraint("Horizontal", 3),
    Sketcher.Constraint("DistanceX", 1, 1, 1, 2, Q("0.125 in")),
    Sketcher.Constraint("DistanceY", 0, 2, 0, 1, Q("0.8125 in")),
    Sketcher.Constraint("DistanceX", 1, 2, -1, 1, Q("4.25 in")),
    Sketcher.Constraint("DistanceY", 0, 2, -1, 1, Q("0.40625 in")),
])
pad13 = body13.newObject("PartDesign::Pad", "Pad012")
pad13.Profile = sketch17
pad13.Length = Q("0.125 in")
body14 = doc.addObject("PartDesign::Body", "Body013")

# Sketch on XY plane
sketch18 = body14.newObject("Sketcher::SketchObject", "Sketch017")
sketch18.AttachmentSupport = (doc.getObject("XY_Plane013"), [""])
sketch18.MapMode = "FlatFace"
sketch18.AttachmentOffset = App.Placement(App.Vector(0, 0, 0.09375 * 25.4), App.Rotation())
sketch18.addGeometry([
    Part.LineSegment(App.Vector(-40, 25, 0), App.Vector(-40, 18, 0)),
    Part.LineSegment(App.Vector(-40, 18, 0), App.Vector(-33, 18, 0)),
    Part.LineSegment(App.Vector(-33, 18, 0), App.Vector(-33, 25, 0)),
    Part.LineSegment(App.Vector(-33, 25, 0), App.Vector(-40, 25, 0)),
], False)
sketch18.addConstraint([
    Sketcher.Constraint("Coincident", 0, 2, 1, 1),
    Sketcher.Constraint("Coincident", 1, 2, 2, 1),
    Sketcher.Constraint("Coincident", 2, 2, 3, 1),
    Sketcher.Constraint("Coincident", 3, 2, 0, 1),
    Sketcher.Constraint("Vertical", 0),
    Sketcher.Constraint("Horizontal", 1),
    Sketcher.Constraint("Vertical", 2),
    Sketcher.Constraint("Horizontal", 3),
    Sketcher.Constraint("Equal", 3, 0),
    Sketcher.Constraint("DistanceX", 1, 1, 1, 2, Q("0.28125 in")),
    Sketcher.Constraint("DistanceX", 0, 2, -1, 1, Q("1.578125 in")),
    Sketcher.Constraint("DistanceY", -1, 1, 0, 2, 17.508627),
])
pad14 = body14.newObject("PartDesign::Pad", "Pad013")
pad14.Profile = sketch18
pad14.Length = Q("0.5 in")
body15 = doc.addObject("PartDesign::Body", "Body014")

# Sketch on XY plane
sketch19 = body15.newObject("Sketcher::SketchObject", "Sketch018")
sketch19.AttachmentSupport = (doc.getObject("XY_Plane014"), [""])
sketch19.MapMode = "FlatFace"
sketch19.AttachmentOffset = App.Placement(App.Vector(0, 0, 0.09375 * 25.4), App.Rotation())
sketch19.addGeometry([
    Part.LineSegment(App.Vector(-40, -14, 0), App.Vector(-40, -28, 0)),
    Part.LineSegment(App.Vector(-40, -28, 0), App.Vector(-33, -28, 0)),
    Part.LineSegment(App.Vector(-33, -28, 0), App.Vector(-33, -14, 0)),
    Part.LineSegment(App.Vector(-33, -14, 0), App.Vector(-40, -14, 0)),
], False)
sketch19.addConstraint([
    Sketcher.Constraint("Coincident", 0, 2, 1, 1),
    Sketcher.Constraint("Coincident", 1, 2, 2, 1),
    Sketcher.Constraint("Coincident", 2, 2, 3, 1),
    Sketcher.Constraint("Coincident", 3, 2, 0, 1),
    Sketcher.Constraint("Vertical", 0),
    Sketcher.Constraint("Horizontal", 1),
    Sketcher.Constraint("Vertical", 2),
    Sketcher.Constraint("Horizontal", 3),
    Sketcher.Constraint("DistanceX", 1, 1, 1, 2, Q("0.28125 in")),
    Sketcher.Constraint("DistanceY", 0, 2, 0, 1, Q("0.5625 in")),
    Sketcher.Constraint("DistanceX", 0, 2, -1, 1, Q("1.578125 in")),
    Sketcher.Constraint("DistanceY", 0, 2, -1, 1, 28.224252),
])
pad15 = body15.newObject("PartDesign::Pad", "Pad014")
pad15.Profile = sketch19
pad15.Length = Q("0.5 in")

# Sketch on YZ plane
sketch20 = body15.newObject("Sketcher::SketchObject", "Sketch019")
sketch20.AttachmentSupport = (doc.getObject("YZ_Plane014"), [""])
sketch20.MapMode = "FlatFace"
sketch20.AttachmentOffset = App.Placement(App.Vector(0, 0, -1.578125 * 25.4), App.Rotation())
sketch20.addGeometry([
    Part.LineSegment(App.Vector(-18.7, 15.1, 0), App.Vector(-18.7, 8.7, 0)),
    Part.LineSegment(App.Vector(-18.7, 8.7, 0), App.Vector(-23.5, 8.7, 0)),
    Part.LineSegment(App.Vector(-23.5, 8.7, 0), App.Vector(-23.5, 15.1, 0)),
    Part.LineSegment(App.Vector(-23.5, 15.1, 0), App.Vector(-18.7, 15.1, 0)),
], False)
sketch20.addConstraint([
    Sketcher.Constraint("Coincident", 0, 2, 1, 1),
    Sketcher.Constraint("Coincident", 1, 2, 2, 1),
    Sketcher.Constraint("Coincident", 2, 2, 3, 1),
    Sketcher.Constraint("Coincident", 3, 2, 0, 1),
    Sketcher.Constraint("Vertical", 0),
    Sketcher.Constraint("Horizontal", 1),
    Sketcher.Constraint("Vertical", 2),
    Sketcher.Constraint("Horizontal", 3),
    Sketcher.Constraint("DistanceY", 0, 2, 0, 1, Q("0.25 in")),
    Sketcher.Constraint("DistanceX", 1, 2, 1, 1, Q("0.1875 in")),
    Sketcher.Constraint("DistanceY", -1, 1, 0, 2, Q("0.34375 in")),
    Sketcher.Constraint("DistanceX", 0, 2, -1, 1, 18.699252),
])
pocket5 = body15.newObject("PartDesign::Pocket", "Pocket004")
pocket5.Profile = sketch20
pocket5.Type = "ThroughAll"
pocket5.Reversed = True
body16 = doc.addObject("PartDesign::Body", "Body015")
body16.AllowCompound = True

# Sketch on XY plane
sketch21 = body16.newObject("Sketcher::SketchObject", "Sketch020")
sketch21.AttachmentSupport = (doc.getObject("XY_Plane015"), [""])
sketch21.MapMode = "FlatFace"
sketch21.AttachmentOffset = App.Placement(App.Vector(0, 0, 0.59375 * 25.4), App.Rotation())
sketch21.addGeometry([
    Part.LineSegment(App.Vector(-36.9, 24.7, 0), App.Vector(-36.9, 21.5, 0)),  # 0
    Part.LineSegment(App.Vector(-36.9, 21.5, 0), App.Vector(-40.1, 21.5, 0)),  # 1
    Part.LineSegment(App.Vector(-40.1, 21.5, 0), App.Vector(-40.1, 20.7, 0)),  # 2
    Part.LineSegment(App.Vector(-40.1, 20.7, 0), App.Vector(-36.9, 20.7, 0)),  # 3
    Part.LineSegment(App.Vector(-36.9, 20.7, 0), App.Vector(-36.9, 17.5, 0)),  # 4
    Part.LineSegment(App.Vector(-36.9, 17.5, 0), App.Vector(-36.1, 17.5, 0)),  # 5
    Part.LineSegment(App.Vector(-36.1, 17.5, 0), App.Vector(-36.1, 20.7, 0)),  # 6
    Part.LineSegment(App.Vector(-36.1, 20.7, 0), App.Vector(-32.9, 20.7, 0)),  # 7
    Part.LineSegment(App.Vector(-32.9, 20.7, 0), App.Vector(-32.9, 21.5, 0)),  # 8
    Part.LineSegment(App.Vector(-32.9, 21.5, 0), App.Vector(-36.1, 21.5, 0)),  # 9
    Part.LineSegment(App.Vector(-36.1, 21.5, 0), App.Vector(-36.1, 24.7, 0)),  # 10
    Part.LineSegment(App.Vector(-36.1, 24.7, 0), App.Vector(-36.9, 24.7, 0)),  # 11
    Part.LineSegment(App.Vector(-36.9, -13.9, 0), App.Vector(-36.9, -15.9, 0)),  # 12
    Part.LineSegment(App.Vector(-36.9, -15.9, 0), App.Vector(-40.1, -15.9, 0)),  # 13
    Part.LineSegment(App.Vector(-40.1, -15.9, 0), App.Vector(-40.1, -16.7, 0)),  # 14
    Part.LineSegment(App.Vector(-40.1, -16.7, 0), App.Vector(-36.9, -16.7, 0)),  # 15
    Part.LineSegment(App.Vector(-36.9, -16.7, 0), App.Vector(-36.9, -25.5, 0)),  # 16
    Part.LineSegment(App.Vector(-36.9, -25.5, 0), App.Vector(-40.1, -25.5, 0)),  # 17
    Part.LineSegment(App.Vector(-40.1, -25.5, 0), App.Vector(-40.1, -26.2, 0)),  # 18
    Part.LineSegment(App.Vector(-40.1, -26.2, 0), App.Vector(-36.9, -26.2, 0)),  # 19
    Part.LineSegment(App.Vector(-36.9, -26.2, 0), App.Vector(-36.9, -28.2, 0)),  # 20
    Part.LineSegment(App.Vector(-36.9, -28.2, 0), App.Vector(-36.1, -28.2, 0)),  # 21
    Part.LineSegment(App.Vector(-36.1, -28.2, 0), App.Vector(-36.1, -26.2, 0)),  # 22
    Part.LineSegment(App.Vector(-36.1, -26.2, 0), App.Vector(-32.9, -26.2, 0)),  # 23
    Part.LineSegment(App.Vector(-32.9, -26.2, 0), App.Vector(-32.9, -25.5, 0)),  # 24
    Part.LineSegment(App.Vector(-32.9, -25.5, 0), App.Vector(-36.1, -25.5, 0)),  # 25
    Part.LineSegment(App.Vector(-36.1, -25.5, 0), App.Vector(-36.1, -16.7, 0)),  # 26
    Part.LineSegment(App.Vector(-36.1, -16.7, 0), App.Vector(-32.9, -16.7, 0)),  # 27
    Part.LineSegment(App.Vector(-32.9, -16.7, 0), App.Vector(-32.9, -15.9, 0)),  # 28
    Part.LineSegment(App.Vector(-32.9, -15.9, 0), App.Vector(-36.1, -15.9, 0)),  # 29
    Part.LineSegment(App.Vector(-36.1, -15.9, 0), App.Vector(-36.1, -13.9, 0)),  # 30
    Part.LineSegment(App.Vector(-36.1, -13.9, 0), App.Vector(-36.9, -13.9, 0)),  # 31
], False)
sketch21.addConstraint([
    Sketcher.Constraint("Coincident", 0, 2, 1, 1),
    Sketcher.Constraint("Coincident", 1, 2, 2, 1),
    Sketcher.Constraint("Coincident", 2, 2, 3, 1),
    Sketcher.Constraint("Coincident", 3, 2, 4, 1),
    Sketcher.Constraint("Coincident", 4, 2, 5, 1),
    Sketcher.Constraint("Coincident", 5, 2, 6, 1),
    Sketcher.Constraint("Coincident", 6, 2, 7, 1),
    Sketcher.Constraint("Coincident", 7, 2, 8, 1),
    Sketcher.Constraint("Coincident", 8, 2, 9, 1),
    Sketcher.Constraint("Coincident", 9, 2, 10, 1),
    Sketcher.Constraint("Coincident", 10, 2, 11, 1),
    Sketcher.Constraint("Coincident", 11, 2, 0, 1),
    Sketcher.Constraint("Coincident", 12, 2, 13, 1),
    Sketcher.Constraint("Coincident", 13, 2, 14, 1),
    Sketcher.Constraint("Coincident", 14, 2, 15, 1),
    Sketcher.Constraint("Coincident", 15, 2, 16, 1),
    Sketcher.Constraint("Coincident", 16, 2, 17, 1),
    Sketcher.Constraint("Coincident", 17, 2, 18, 1),
    Sketcher.Constraint("Coincident", 18, 2, 19, 1),
    Sketcher.Constraint("Coincident", 19, 2, 20, 1),
    Sketcher.Constraint("Coincident", 20, 2, 21, 1),
    Sketcher.Constraint("Coincident", 21, 2, 22, 1),
    Sketcher.Constraint("Coincident", 22, 2, 23, 1),
    Sketcher.Constraint("Coincident", 23, 2, 24, 1),
    Sketcher.Constraint("Coincident", 24, 2, 25, 1),
    Sketcher.Constraint("Coincident", 25, 2, 26, 1),
    Sketcher.Constraint("Coincident", 26, 2, 27, 1),
    Sketcher.Constraint("Coincident", 27, 2, 28, 1),
    Sketcher.Constraint("Coincident", 28, 2, 29, 1),
    Sketcher.Constraint("Coincident", 29, 2, 30, 1),
    Sketcher.Constraint("Coincident", 30, 2, 31, 1),
    Sketcher.Constraint("Coincident", 31, 2, 12, 1),
    Sketcher.Constraint("Vertical", 0),
    Sketcher.Constraint("Horizontal", 1),
    Sketcher.Constraint("Vertical", 2),
    Sketcher.Constraint("Horizontal", 3),
    Sketcher.Constraint("Vertical", 4),
    Sketcher.Constraint("Horizontal", 5),
    Sketcher.Constraint("Vertical", 6),
    Sketcher.Constraint("Horizontal", 7),
    Sketcher.Constraint("Vertical", 8),
    Sketcher.Constraint("Horizontal", 9),
    Sketcher.Constraint("Vertical", 10),
    Sketcher.Constraint("Horizontal", 11),
    Sketcher.Constraint("Vertical", 12),
    Sketcher.Constraint("Horizontal", 13),
    Sketcher.Constraint("Vertical", 14),
    Sketcher.Constraint("Horizontal", 15),
    Sketcher.Constraint("Vertical", 16),
    Sketcher.Constraint("Horizontal", 17),
    Sketcher.Constraint("Vertical", 18),
    Sketcher.Constraint("Horizontal", 19),
    Sketcher.Constraint("Vertical", 20),
    Sketcher.Constraint("Horizontal", 21),
    Sketcher.Constraint("Vertical", 22),
    Sketcher.Constraint("Horizontal", 23),
    Sketcher.Constraint("Vertical", 24),
    Sketcher.Constraint("Horizontal", 25),
    Sketcher.Constraint("Vertical", 26),
    Sketcher.Constraint("Horizontal", 27),
    Sketcher.Constraint("Vertical", 28),
    Sketcher.Constraint("Horizontal", 29),
    Sketcher.Constraint("Vertical", 30),
    Sketcher.Constraint("Horizontal", 31),
    Sketcher.Constraint("Horizontal", 3, 2, 6, 2),
    Sketcher.Constraint("Horizontal", 1, 2, 8, 2),
    Sketcher.Constraint("Horizontal", 19, 2, 22, 2),
    Sketcher.Constraint("Horizontal", 17, 2, 24, 2),
    Sketcher.Constraint("Horizontal", 15, 2, 26, 2),
    Sketcher.Constraint("Horizontal", 13, 2, 28, 2),
    Sketcher.Constraint("Vertical", 0, 2, 3, 2),
    Sketcher.Constraint("Vertical", 6, 2, 9, 2),
    Sketcher.Constraint("Vertical", 11, 2, 12, 2),
    Sketcher.Constraint("Vertical", 2, 2, 13, 2),
    Sketcher.Constraint("Vertical", 12, 2, 15, 2),
    Sketcher.Constraint("Vertical", 14, 2, 17, 2),
    Sketcher.Constraint("Vertical", 16, 2, 19, 2),
    Sketcher.Constraint("Vertical", 10, 2, 21, 2),
    Sketcher.Constraint("Vertical", 8, 2, 23, 2),
    Sketcher.Constraint("Vertical", 22, 2, 25, 2),
    Sketcher.Constraint("Vertical", 24, 2, 27, 2),
    Sketcher.Constraint("Vertical", 26, 2, 29, 2),
    Sketcher.Constraint("Equal", 3, 7),
    Sketcher.Constraint("Equal", 29, 0),
    Sketcher.Constraint("Equal", 31, 2),
    Sketcher.Constraint("Equal", 0, 4),
    Sketcher.Constraint("Equal", 8, 14),
    Sketcher.Constraint("Equal", 14, 18),
    Sketcher.Constraint("Equal", 12, 20),
    Sketcher.Constraint("DistanceX", 5, 1, 5, 2, Q("0.03 in")),
    Sketcher.Constraint("DistanceY", 16, 2, 16, 1, Q("0.345 in")),
    Sketcher.Constraint("DistanceX", 1, 2, -1, 1, Q("1.578125 in")),
    Sketcher.Constraint("DistanceX", 7, 2, -1, 1, Q("1.296875 in")),
    Sketcher.Constraint("DistanceY", 12, 2, 12, 1, 2.00025),
    Sketcher.Constraint("DistanceY", -1, 1, 0, 2, 21.461502),
    Sketcher.Constraint("DistanceY", 12, 2, -1, 1, 15.937002),
])
pad16 = body16.newObject("PartDesign::Pad", "Pad015")
pad16.Profile = sketch21
pad16.Length = Q("0.125 in")
pad16.Reversed = True
doc.recompute()

body17 = doc.addObject("PartDesign::Body", "Body016")
body17.BaseFeature = body16
boolean = body14.newObject("PartDesign::Boolean", "Boolean")
boolean.Type = "Cut"
boolean.addObjects([body17])
doc.recompute()

boolean2 = body15.newObject("PartDesign::Boolean", "Boolean001")
boolean2.Type = "Cut"
boolean2.addObjects([body16])

doc.recompute()
